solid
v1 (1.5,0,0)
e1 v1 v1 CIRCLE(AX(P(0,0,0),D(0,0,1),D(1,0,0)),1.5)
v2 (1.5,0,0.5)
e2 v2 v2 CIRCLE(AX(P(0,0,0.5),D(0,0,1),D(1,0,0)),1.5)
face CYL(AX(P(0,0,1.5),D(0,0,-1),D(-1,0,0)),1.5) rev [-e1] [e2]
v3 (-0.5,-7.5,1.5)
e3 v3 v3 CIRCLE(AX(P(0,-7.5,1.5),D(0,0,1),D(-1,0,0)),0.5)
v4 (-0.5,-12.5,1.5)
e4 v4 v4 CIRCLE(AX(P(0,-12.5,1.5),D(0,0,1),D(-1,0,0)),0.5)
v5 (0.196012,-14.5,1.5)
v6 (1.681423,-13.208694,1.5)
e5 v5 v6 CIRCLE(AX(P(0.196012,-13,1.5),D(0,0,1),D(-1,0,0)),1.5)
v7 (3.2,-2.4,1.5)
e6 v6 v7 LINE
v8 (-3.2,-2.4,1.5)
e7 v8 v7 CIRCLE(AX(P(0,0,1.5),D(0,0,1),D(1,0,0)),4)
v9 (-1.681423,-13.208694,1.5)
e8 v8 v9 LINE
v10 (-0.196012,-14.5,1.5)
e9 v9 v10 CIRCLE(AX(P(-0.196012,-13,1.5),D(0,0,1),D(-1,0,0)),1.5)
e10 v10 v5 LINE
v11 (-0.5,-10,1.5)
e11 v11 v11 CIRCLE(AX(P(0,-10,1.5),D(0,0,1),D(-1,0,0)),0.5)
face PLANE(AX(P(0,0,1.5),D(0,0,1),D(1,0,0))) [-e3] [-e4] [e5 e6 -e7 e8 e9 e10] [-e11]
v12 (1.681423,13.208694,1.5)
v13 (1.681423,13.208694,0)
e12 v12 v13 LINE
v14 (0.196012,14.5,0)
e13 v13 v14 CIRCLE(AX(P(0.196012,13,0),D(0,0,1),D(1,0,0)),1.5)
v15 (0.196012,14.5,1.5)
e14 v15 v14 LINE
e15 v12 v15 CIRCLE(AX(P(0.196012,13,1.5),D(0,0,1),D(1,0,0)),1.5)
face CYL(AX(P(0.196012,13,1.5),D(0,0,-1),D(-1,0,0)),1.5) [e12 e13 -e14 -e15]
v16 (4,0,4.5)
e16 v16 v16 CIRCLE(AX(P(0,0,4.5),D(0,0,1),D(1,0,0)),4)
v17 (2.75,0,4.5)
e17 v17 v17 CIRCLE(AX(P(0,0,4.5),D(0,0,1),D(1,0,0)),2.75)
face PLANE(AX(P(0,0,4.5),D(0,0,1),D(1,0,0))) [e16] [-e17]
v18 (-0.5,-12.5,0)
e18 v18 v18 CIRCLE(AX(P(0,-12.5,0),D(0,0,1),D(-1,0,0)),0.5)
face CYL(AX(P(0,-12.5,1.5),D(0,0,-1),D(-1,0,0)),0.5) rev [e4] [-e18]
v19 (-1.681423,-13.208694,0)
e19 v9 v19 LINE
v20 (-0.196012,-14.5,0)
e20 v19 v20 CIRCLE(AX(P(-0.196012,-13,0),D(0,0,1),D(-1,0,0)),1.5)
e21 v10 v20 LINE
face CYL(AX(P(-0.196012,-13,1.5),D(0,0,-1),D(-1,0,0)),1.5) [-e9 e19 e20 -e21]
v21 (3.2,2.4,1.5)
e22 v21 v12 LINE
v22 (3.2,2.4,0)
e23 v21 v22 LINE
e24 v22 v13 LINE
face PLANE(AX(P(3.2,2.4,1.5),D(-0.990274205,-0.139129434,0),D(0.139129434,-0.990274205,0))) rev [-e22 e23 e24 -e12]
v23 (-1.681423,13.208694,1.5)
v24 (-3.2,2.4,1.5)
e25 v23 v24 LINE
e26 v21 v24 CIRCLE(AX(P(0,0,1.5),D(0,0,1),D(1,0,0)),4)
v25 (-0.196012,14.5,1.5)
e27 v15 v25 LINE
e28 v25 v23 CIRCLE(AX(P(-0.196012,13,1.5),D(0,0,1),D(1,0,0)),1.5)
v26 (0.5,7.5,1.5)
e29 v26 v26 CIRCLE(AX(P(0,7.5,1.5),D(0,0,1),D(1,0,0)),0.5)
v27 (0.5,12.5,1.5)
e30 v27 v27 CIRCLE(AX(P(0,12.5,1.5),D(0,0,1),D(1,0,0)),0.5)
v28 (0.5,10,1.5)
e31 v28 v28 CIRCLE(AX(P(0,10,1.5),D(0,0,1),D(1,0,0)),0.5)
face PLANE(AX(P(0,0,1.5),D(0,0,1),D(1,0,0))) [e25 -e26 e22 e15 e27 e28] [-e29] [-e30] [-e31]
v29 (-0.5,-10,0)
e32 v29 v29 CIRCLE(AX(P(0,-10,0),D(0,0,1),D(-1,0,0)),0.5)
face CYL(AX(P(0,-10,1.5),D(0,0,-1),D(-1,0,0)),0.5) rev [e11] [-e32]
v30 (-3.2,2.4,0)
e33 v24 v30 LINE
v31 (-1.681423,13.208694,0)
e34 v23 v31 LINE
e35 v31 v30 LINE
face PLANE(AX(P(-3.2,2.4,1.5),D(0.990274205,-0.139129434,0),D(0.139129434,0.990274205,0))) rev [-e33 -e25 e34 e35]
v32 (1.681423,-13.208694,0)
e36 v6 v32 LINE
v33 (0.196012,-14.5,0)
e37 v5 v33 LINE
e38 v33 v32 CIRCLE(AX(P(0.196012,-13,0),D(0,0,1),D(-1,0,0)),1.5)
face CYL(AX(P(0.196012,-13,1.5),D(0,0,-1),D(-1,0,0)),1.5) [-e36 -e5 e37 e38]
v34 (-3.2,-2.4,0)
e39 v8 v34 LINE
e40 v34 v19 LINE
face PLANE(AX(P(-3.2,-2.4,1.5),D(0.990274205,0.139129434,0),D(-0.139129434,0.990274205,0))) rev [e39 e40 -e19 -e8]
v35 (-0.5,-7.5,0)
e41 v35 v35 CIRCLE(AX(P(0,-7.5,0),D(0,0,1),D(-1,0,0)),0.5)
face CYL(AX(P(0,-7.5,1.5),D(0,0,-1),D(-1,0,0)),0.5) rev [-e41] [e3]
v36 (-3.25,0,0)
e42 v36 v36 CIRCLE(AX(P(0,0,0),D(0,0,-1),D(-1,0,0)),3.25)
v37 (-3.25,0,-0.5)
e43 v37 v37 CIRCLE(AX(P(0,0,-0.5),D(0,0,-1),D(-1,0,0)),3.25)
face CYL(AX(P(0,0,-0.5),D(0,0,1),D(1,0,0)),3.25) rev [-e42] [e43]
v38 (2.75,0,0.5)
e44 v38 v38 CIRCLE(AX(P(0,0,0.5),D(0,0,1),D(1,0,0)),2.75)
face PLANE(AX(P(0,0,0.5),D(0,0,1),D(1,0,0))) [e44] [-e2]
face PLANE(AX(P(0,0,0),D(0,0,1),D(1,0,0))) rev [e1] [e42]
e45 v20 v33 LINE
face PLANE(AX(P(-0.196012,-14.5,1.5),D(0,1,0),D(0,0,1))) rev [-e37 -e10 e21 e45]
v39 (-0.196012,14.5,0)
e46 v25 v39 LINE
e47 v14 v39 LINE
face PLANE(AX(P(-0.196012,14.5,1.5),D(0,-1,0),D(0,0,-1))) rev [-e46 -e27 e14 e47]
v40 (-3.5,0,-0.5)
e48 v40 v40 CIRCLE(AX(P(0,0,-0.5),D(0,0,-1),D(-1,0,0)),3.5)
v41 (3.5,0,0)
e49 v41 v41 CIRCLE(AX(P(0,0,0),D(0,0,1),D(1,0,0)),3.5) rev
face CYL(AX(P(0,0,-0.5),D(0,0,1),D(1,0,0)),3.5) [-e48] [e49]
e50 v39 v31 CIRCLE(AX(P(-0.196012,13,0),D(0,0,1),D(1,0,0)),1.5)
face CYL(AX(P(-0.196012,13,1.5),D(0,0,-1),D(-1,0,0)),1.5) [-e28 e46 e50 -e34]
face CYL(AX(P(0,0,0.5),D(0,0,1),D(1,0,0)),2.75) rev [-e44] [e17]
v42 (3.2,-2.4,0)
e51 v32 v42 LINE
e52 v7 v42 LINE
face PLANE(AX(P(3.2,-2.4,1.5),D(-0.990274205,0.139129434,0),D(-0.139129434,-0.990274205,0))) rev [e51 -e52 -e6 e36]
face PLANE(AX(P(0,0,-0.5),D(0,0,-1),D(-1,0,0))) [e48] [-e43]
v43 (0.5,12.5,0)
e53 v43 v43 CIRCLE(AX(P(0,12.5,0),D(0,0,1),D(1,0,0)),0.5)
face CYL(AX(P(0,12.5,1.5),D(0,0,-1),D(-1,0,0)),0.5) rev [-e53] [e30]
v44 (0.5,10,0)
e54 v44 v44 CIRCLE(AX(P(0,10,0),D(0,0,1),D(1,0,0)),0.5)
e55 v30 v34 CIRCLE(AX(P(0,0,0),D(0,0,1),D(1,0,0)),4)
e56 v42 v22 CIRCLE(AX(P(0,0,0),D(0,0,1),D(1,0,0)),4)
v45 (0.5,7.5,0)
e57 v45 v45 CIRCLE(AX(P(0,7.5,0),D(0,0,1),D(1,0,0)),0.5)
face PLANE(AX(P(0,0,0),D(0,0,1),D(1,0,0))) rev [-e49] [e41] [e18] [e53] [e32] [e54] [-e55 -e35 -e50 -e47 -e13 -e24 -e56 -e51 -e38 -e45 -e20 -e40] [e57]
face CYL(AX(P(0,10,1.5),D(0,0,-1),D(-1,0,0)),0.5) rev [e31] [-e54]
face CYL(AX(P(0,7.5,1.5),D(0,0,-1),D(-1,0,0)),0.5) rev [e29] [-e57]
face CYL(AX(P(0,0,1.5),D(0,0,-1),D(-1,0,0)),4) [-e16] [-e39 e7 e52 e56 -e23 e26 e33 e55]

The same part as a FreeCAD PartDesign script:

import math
import FreeCAD as App
import Part
import Sketcher
Q = App.Units.Quantity

doc = App.newDocument("Part")
body = doc.addObject("PartDesign::Body", "Body")

# Sketch on XY plane
sketch1 = body.newObject("Sketcher::SketchObject", "Sketch")
sketch1.AttachmentSupport = (doc.getObject("XY_Plane"), [""])
sketch1.MapMode = "FlatFace"
sketch1.addGeometry([
    Part.LineSegment(App.Vector(-1.68, 13.21, 0), App.Vector(-3.2, 2.4, 0)),  # 0
    Part.ArcOfCircle(Part.Circle(App.Vector(0, 0, 0), App.Vector(0, 0, 1), 4), math.radians(143), math.radians(217)),  # 1
    Part.LineSegment(App.Vector(-3.2, -2.4, 0), App.Vector(-1.68, -13.21, 0)),  # 2
    Part.ArcOfCircle(Part.Circle(App.Vector(-0.2, -13, 0), App.Vector(0, 0, 1), 1.5), math.radians(-172), math.radians(-90)),  # 3
    Part.LineSegment(App.Vector(-0.2, -14.5, 0), App.Vector(0.2, -14.5, 0)),  # 4
    Part.ArcOfCircle(Part.Circle(App.Vector(0.2, -13, 0), App.Vector(0, 0, 1), 1.5), math.radians(-90), math.radians(-8)),  # 5
    Part.LineSegment(App.Vector(1.68, -13.21, 0), App.Vector(3.2, -2.4, 0)),  # 6
    Part.ArcOfCircle(Part.Circle(App.Vector(0, 0, 0), App.Vector(0, 0, 1), 4), math.radians(-37), math.radians(37)),  # 7
    Part.LineSegment(App.Vector(3.2, 2.4, 0), App.Vector(1.68, 13.21, 0)),  # 8
    Part.ArcOfCircle(Part.Circle(App.Vector(0.2, 13, 0), App.Vector(0, 0, 1), 1.5), math.radians(8), math.radians(90)),  # 9
    Part.LineSegment(App.Vector(0.2, 14.5, 0), App.Vector(-0.2, 14.5, 0)),  # 10
    Part.ArcOfCircle(Part.Circle(App.Vector(-0.2, 13, 0), App.Vector(0, 0, 1), 1.5), math.radians(90), math.radians(172)),  # 11
    Part.Circle(App.Vector(0, -12.5, 0), App.Vector(0, 0, 1), 0.5),  # 12
    Part.Circle(App.Vector(0, -10, 0), App.Vector(0, 0, 1), 0.5),  # 13
    Part.Circle(App.Vector(0, -7.5, 0), App.Vector(0, 0, 1), 0.5),  # 14
    Part.Circle(App.Vector(0, 0, 0), App.Vector(0, 0, 1), 1.5),  # 15
    Part.Circle(App.Vector(0, 7.5, 0), App.Vector(0, 0, 1), 0.5),  # 16
    Part.Circle(App.Vector(0, 10, 0), App.Vector(0, 0, 1), 0.5),  # 17
    Part.Circle(App.Vector(0, 12.5, 0), App.Vector(0, 0, 1), 0.5),  # 18
], False)
sketch1.addConstraint([
    Sketcher.Constraint("Coincident", 0, 2, 1, 1),
    Sketcher.Constraint("Coincident", 1, 2, 2, 1),
    Sketcher.Constraint("Tangent", 2, 2, 3, 1),
    Sketcher.Constraint("Tangent", 3, 2, 4, 1),
    Sketcher.Constraint("Tangent", 4, 2, 5, 1),
    Sketcher.Constraint("Tangent", 5, 2, 6, 1),
    Sketcher.Constraint("Coincident", 6, 2, 7, 1),
    Sketcher.Constraint("Coincident", 7, 2, 8, 1),
    Sketcher.Constraint("Tangent", 8, 2, 9, 1),
    Sketcher.Constraint("Tangent", 9, 2, 10, 1),
    Sketcher.Constraint("Tangent", 10, 2, 11, 1),
    Sketcher.Constraint("Tangent", 11, 2, 0, 1),
    Sketcher.Constraint("Horizontal", 4),
    Sketcher.Constraint("Horizontal", 10),
    Sketcher.Constraint("Coincident", 1, 3, -1, 1),
    Sketcher.Constraint("Coincident", 7, 3, -1, 1),
    Sketcher.Constraint("Coincident", 15, 3, -1, 1),
    Sketcher.Constraint("Equal", 3, 5),
    Sketcher.Constraint("Equal", 1, 7),
    Sketcher.Constraint("Equal", 5, 9),
    Sketcher.Constraint("Equal", 9, 11),
    Sketcher.Constraint("Equal", 12, 13),
    Sketcher.Constraint("Equal", 13, 14),
    Sketcher.Constraint("Equal", 11, 15),
    Sketcher.Constraint("Equal", 14, 16),
    Sketcher.Constraint("Equal", 16, 17),
    Sketcher.Constraint("Equal", 17, 18),
    Sketcher.Constraint("Symmetric", 3, 3, 9, 3, -1, 1),
    Sketcher.Constraint("Symmetric", 14, 3, 16, 3, -1, 1),
    Sketcher.Constraint("Symmetric", 13, 3, 17, 3, -1, 1),
    Sketcher.Constraint("Symmetric", 12, 3, 18, 3, -1, 1),
    Sketcher.Constraint("Symmetric", 5, 2, 11, 2, -1, 1),
    Sketcher.Constraint("Symmetric", 2, 2, 5, 2, -2),
    Sketcher.Constraint("PointOnObject", 12, 3, -2),
    Sketcher.Constraint("PointOnObject", 13, 3, -2),
    Sketcher.Constraint("PointOnObject", 14, 3, -2),
    Sketcher.Constraint("Parallel", 2, 8),
    Sketcher.Constraint("Diameter", 12, Q("1 mm")),
    Sketcher.Constraint("Diameter", 15, Q("3 mm")),
    Sketcher.Constraint("Radius", 1, Q("4 mm")),
    Sketcher.Constraint("DistanceY", 3, 3, -1, 1, Q("13 mm")),
    Sketcher.Constraint("DistanceY", 13, 3, -1, 1, Q("10 mm")),
    Sketcher.Constraint("DistanceY", 12, 3, 14, 3, Q("5 mm")),
    Sketcher.Constraint("DistanceY", 3, 2, 12, 3, Q("2 mm")),
    Sketcher.Constraint("DistanceX", 0, 2, -1, 1, Q("3.2 mm")),
    Sketcher.Constraint("Distance", 0, Q("10.91485 mm")),
])
pad1 = body.newObject("PartDesign::Pad", "Pad")
pad1.Profile = sketch1
pad1.Length = 1.5

# Sketch on XY plane
sketch2 = body.newObject("Sketcher::SketchObject", "Sketch001")
sketch2.AttachmentSupport = (doc.getObject("XY_Plane"), [""])
sketch2.MapMode = "FlatFace"
sketch2.AttachmentOffset = App.Placement(App.Vector(0, 0, 1.5), App.Rotation())
sketch2.addGeometry(Part.Circle(App.Vector(0, 0, 0), App.Vector(0, 0, 1), 4), False)
sketch2.addConstraint([
    Sketcher.Constraint("Coincident", 0, 3, -1, 1),
    Sketcher.Constraint("Diameter", 0, Q("8 mm")),
])
pad2 = body.newObject("PartDesign::Pad", "Pad001")
pad2.Profile = sketch2
pad2.Length = 3

# Sketch on XY plane
sketch3 = body.newObject("Sketcher::SketchObject", "Sketch002")
sketch3.AttachmentSupport = (doc.getObject("XY_Plane"), [""])
sketch3.MapMode = "FlatFace"
sketch3.addGeometry([
    Part.Circle(App.Vector(0, 0, 0), App.Vector(0, 0, 1), 3.5),
    Part.Circle(App.Vector(0, 0, 0), App.Vector(0, 0, 1), 3.2),
], False)
sketch3.addConstraint([
    Sketcher.Constraint("Coincident", 0, 3, -1, 1),
    Sketcher.Constraint("Coincident", 1, 3, -1, 1),
    Sketcher.Constraint("Diameter", 0, Q("7 mm")),
    Sketcher.Constraint("Diameter", 1, Q("6.5 mm")),
])
pad3 = body.newObject("PartDesign::Pad", "Pad002")
pad3.Profile = sketch3
pad3.Length = 0.5
pad3.Reversed = True

# Sketch on XY plane
sketch4 = body.newObject("Sketcher::SketchObject", "Sketch003")
sketch4.AttachmentSupport = (doc.getObject("XY_Plane"), [""])
sketch4.MapMode = "FlatFace"
sketch4.AttachmentOffset = App.Placement(App.Vector(0, 0, 4.5), App.Rotation())
sketch4.addGeometry(Part.Circle(App.Vector(0, 0, 0), App.Vector(0, 0, 1), 2.8), False)
sketch4.addConstraint([
    Sketcher.Constraint("Coincident", 0, 3, -1, 1),
    Sketcher.Constraint("Diameter", 0, Q("5.5 mm")),
])
pocket1 = body.newObject("PartDesign::Pocket", "Pocket")
pocket1.Profile = sketch4
pocket1.Length = 4

doc.recompute()
